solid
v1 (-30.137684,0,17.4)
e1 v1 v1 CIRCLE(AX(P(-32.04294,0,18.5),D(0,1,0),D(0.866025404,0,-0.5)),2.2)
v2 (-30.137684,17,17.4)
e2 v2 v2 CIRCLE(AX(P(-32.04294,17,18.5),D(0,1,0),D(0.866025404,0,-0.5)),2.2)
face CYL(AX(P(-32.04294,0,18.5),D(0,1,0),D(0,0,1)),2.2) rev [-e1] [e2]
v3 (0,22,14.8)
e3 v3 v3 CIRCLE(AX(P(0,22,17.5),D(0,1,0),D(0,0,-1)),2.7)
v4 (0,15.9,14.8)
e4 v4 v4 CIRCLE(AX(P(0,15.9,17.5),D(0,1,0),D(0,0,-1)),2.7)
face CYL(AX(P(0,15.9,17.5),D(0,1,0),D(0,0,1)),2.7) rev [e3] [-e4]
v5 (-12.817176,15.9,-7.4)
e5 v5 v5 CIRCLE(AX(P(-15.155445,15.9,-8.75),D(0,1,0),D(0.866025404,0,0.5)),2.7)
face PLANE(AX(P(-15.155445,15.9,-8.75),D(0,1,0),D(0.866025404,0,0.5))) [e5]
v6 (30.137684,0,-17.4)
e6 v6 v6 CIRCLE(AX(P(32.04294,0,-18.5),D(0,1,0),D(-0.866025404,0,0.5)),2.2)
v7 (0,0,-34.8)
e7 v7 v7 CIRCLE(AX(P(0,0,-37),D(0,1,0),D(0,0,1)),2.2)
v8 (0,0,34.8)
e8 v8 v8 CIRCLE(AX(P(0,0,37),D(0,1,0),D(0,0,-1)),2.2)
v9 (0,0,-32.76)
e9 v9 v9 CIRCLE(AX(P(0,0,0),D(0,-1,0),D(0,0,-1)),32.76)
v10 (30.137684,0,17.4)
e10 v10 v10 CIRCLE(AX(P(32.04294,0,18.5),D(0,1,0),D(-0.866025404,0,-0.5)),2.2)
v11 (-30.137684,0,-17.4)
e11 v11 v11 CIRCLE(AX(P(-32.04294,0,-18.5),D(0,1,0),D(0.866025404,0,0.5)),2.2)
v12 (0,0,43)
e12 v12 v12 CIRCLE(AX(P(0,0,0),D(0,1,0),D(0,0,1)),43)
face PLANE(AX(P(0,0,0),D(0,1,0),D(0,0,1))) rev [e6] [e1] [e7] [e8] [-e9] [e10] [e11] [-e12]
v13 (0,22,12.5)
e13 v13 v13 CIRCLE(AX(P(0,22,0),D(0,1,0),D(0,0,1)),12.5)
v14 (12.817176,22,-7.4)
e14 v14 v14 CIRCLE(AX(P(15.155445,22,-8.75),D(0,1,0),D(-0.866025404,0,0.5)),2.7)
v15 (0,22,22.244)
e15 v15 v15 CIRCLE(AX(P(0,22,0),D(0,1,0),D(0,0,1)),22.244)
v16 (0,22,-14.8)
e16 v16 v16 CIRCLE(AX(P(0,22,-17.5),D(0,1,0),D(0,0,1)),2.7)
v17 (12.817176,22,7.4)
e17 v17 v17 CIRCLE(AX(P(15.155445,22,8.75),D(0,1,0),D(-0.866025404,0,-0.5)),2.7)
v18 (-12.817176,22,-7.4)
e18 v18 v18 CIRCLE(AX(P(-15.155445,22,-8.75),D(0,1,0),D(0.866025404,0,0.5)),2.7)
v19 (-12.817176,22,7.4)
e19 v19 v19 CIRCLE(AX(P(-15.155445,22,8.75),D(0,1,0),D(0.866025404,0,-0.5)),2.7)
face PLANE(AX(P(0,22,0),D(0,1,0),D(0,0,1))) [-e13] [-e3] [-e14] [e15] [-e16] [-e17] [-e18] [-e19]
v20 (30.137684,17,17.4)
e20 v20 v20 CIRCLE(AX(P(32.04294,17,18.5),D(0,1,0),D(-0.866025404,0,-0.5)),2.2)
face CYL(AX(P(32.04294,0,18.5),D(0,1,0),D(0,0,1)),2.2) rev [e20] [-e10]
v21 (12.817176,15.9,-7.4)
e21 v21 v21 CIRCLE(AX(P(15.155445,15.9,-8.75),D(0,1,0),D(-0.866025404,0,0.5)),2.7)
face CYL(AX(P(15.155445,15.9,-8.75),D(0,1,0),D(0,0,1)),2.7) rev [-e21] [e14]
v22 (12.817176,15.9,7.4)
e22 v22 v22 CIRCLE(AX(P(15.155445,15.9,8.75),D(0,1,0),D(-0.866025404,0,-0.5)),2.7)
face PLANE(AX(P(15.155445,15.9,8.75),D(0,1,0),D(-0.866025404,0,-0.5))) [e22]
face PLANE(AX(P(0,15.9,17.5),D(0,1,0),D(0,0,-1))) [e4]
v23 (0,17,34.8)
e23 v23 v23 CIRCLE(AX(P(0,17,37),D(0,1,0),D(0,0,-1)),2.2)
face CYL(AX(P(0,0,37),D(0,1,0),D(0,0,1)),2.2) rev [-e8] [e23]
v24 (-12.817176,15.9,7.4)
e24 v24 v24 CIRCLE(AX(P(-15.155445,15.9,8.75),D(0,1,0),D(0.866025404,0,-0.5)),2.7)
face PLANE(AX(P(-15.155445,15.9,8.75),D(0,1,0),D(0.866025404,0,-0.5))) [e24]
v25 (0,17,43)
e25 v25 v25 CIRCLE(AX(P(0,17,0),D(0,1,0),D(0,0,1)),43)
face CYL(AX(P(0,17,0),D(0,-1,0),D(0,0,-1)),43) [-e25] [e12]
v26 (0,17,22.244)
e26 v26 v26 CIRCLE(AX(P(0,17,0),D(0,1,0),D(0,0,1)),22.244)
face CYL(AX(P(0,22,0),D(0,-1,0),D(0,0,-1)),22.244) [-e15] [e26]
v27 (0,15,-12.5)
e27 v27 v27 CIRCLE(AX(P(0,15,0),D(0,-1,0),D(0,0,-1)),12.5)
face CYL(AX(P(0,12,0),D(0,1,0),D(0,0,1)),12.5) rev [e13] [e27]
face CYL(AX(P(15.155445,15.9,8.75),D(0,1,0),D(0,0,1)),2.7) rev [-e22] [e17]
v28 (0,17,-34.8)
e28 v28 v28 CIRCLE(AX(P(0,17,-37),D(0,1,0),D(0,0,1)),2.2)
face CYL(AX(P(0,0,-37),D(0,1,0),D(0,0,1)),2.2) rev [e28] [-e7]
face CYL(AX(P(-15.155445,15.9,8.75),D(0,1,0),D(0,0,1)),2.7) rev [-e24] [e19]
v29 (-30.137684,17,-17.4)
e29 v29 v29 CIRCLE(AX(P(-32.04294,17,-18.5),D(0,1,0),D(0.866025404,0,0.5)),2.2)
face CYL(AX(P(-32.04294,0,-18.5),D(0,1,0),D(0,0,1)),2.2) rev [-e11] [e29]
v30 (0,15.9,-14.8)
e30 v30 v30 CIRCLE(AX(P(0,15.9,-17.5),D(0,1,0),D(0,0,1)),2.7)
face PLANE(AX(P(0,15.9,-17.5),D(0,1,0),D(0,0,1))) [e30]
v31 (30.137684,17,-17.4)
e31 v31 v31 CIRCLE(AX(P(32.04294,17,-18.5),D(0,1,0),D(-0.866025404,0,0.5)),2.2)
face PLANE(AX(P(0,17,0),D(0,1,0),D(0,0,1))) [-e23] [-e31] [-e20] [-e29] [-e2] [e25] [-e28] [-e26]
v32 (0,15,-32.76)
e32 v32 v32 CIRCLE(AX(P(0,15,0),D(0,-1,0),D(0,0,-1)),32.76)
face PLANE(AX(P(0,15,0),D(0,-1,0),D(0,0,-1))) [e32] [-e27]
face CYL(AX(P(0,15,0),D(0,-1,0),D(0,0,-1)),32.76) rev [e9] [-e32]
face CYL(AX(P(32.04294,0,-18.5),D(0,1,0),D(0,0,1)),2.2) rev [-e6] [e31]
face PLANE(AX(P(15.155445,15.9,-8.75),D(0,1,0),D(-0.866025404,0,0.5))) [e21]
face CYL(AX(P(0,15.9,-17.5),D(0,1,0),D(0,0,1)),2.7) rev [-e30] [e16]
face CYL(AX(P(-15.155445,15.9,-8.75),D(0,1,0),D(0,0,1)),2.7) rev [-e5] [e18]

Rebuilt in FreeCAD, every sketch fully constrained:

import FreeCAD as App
import Part
import Sketcher

doc = App.newDocument("Part")
params = doc.addObject("Spreadsheet::Sheet", "Params")
for row, (alias, value) in enumerate([
    ("sketch1_diameter", "86 mm"),
    ("pad1_length", "17 mm"),
    ("pad2_length", "5 mm"),
    ("sketch3_diameter", "65.52 mm"),
    ("pocket1_length", "15 mm"),
    ("sketch4_diameter", "25 mm"),
    ("pocket2_length", "10 mm"),
    ("sketch5_diameter", "5.4 mm"),
    ("pocket3_length", "6.1 mm"),
    ("sketch6_diameter", "4.4 mm"),
], start=1):
    params.set(f"A{row}", alias)
    params.set(f"B{row}", "=" + value)
    params.setAlias(f"B{row}", alias)

body = doc.addObject("PartDesign::Body", "Body")

# Sketch on XZ plane
sketch1 = body.newObject("Sketcher::SketchObject", "Sketch")
sketch1.AttachmentSupport = (doc.getObject("XZ_Plane"), [""])
sketch1.MapMode = "FlatFace"
sketch1.addGeometry(Part.Circle(App.Vector(0, 0, 0), App.Vector(0, 0, 1), 43), False)
sketch1.addConstraint(Sketcher.Constraint("Coincident", 0, 3, -1, 1))
sketch1.addConstraint(Sketcher.Constraint("Diameter", 0, 86.0))
sketch1.setExpression("Constraints[1]", "Params.sketch1_diameter")
pad1 = body.newObject("PartDesign::Pad", "Pad")
pad1.Profile = sketch1
pad1.setExpression("Length", "Params.pad1_length")
pad1.Reversed = True

# Sketch on XZ plane
sketch2 = body.newObject("Sketcher::SketchObject", "Sketch001")
sketch2.AttachmentSupport = (doc.getObject("XZ_Plane"), [""])
sketch2.MapMode = "FlatFace"
sketch2.AttachmentOffset = App.Placement(App.Vector(0, 0, -17), App.Rotation())
sketch2.addGeometry(Part.Circle(App.Vector(0, 0, 0), App.Vector(0, 0, 1), 22), False)
sketch2.addConstraint(Sketcher.Constraint("Coincident", 0, 3, -1, 1))
sketch2.addConstraint(Sketcher.Constraint("Diameter", 0, 44.488))
pad2 = body.newObject("PartDesign::Pad", "Pad001")
pad2.Profile = sketch2
pad2.setExpression("Length", "Params.pad2_length")
pad2.Reversed = True

# Sketch on XZ plane
sketch3 = body.newObject("Sketcher::SketchObject", "Sketch002")
sketch3.AttachmentSupport = (doc.getObject("XZ_Plane"), [""])
sketch3.MapMode = "FlatFace"
sketch3.addGeometry(Part.Circle(App.Vector(0, 0, 0), App.Vector(0, 0, 1), 33), False)
sketch3.addConstraint(Sketcher.Constraint("Coincident", 0, 3, -1, 1))
sketch3.addConstraint(Sketcher.Constraint("Diameter", 0, 65.52))
sketch3.setExpression("Constraints[1]", "Params.sketch3_diameter")
pocket1 = body.newObject("PartDesign::Pocket", "Pocket")
pocket1.Profile = sketch3
pocket1.setExpression("Length", "Params.pocket1_length")

# Sketch on XZ plane
sketch4 = body.newObject("Sketcher::SketchObject", "Sketch003")
sketch4.AttachmentSupport = (doc.getObject("XZ_Plane"), [""])
sketch4.MapMode = "FlatFace"
sketch4.AttachmentOffset = App.Placement(App.Vector(0, 0, -22), App.Rotation())
sketch4.addGeometry(Part.Circle(App.Vector(0, 0, 0), App.Vector(0, 0, 1), 12), False)
sketch4.addConstraint(Sketcher.Constraint("Coincident", 0, 3, -1, 1))
sketch4.addConstraint(Sketcher.Constraint("Diameter", 0, 25.0))
sketch4.setExpression("Constraints[1]", "Params.sketch4_diameter")
pocket2 = body.newObject("PartDesign::Pocket", "Pocket001")
pocket2.Profile = sketch4
pocket2.setExpression("Length", "Params.pocket2_length")
pocket2.Reversed = True

# Sketch on XZ plane
sketch5 = body.newObject("Sketcher::SketchObject", "Sketch004")
sketch5.AttachmentSupport = (doc.getObject("XZ_Plane"), [""])
sketch5.MapMode = "FlatFace"
sketch5.AttachmentOffset = App.Placement(App.Vector(0, 0, -22), App.Rotation())
sketch5.addGeometry(Part.Circle(App.Vector(0, -17.5, 0), App.Vector(0, 0, 1), 2.7), False)
sketch5.addConstraint(Sketcher.Constraint("PointOnObject", 0, 3, -2))
sketch5.addConstraint(Sketcher.Constraint("Diameter", 0, 5.4))
sketch5.addConstraint(Sketcher.Constraint("DistanceY", 0, 3, -1, 1, 17.5))
sketch5.setExpression("Constraints[1]", "Params.sketch5_diameter")
pocket3 = body.newObject("PartDesign::Pocket", "Pocket002")
pocket3.Profile = sketch5
pocket3.setExpression("Length", "Params.pocket3_length")
pocket3.Reversed = True
doc.recompute()

polarpattern = body.newObject("PartDesign::PolarPattern", "PolarPattern")
polarpattern.Originals = [pocket3]
polarpattern.Axis = (doc.getObject("Y_Axis"), [""])
polarpattern.Angle = 360
polarpattern.Occurrences = 6
body.Tip = polarpattern

# Sketch on XZ plane
sketch6 = body.newObject("Sketcher::SketchObject", "Sketch005")
sketch6.AttachmentSupport = (doc.getObject("XZ_Plane"), [""])
sketch6.MapMode = "FlatFace"
sketch6.AttachmentOffset = App.Placement(App.Vector(0, 0, -17), App.Rotation())
sketch6.addGeometry(Part.Circle(App.Vector(0, -37, 0), App.Vector(0, 0, 1), 2.2), False)
sketch6.addConstraint(Sketcher.Constraint("PointOnObject", 0, 3, -2))
sketch6.addConstraint(Sketcher.Constraint("Diameter", 0, 4.4))
sketch6.addConstraint(Sketcher.Constraint("DistanceY", 0, 3, -1, 1, 37.0))
sketch6.setExpression("Constraints[1]", "Params.sketch6_diameter")
pocket4 = body.newObject("PartDesign::Pocket", "Pocket003")
pocket4.Profile = sketch6
pocket4.Type = "ThroughAll"
pocket4.Reversed = True
doc.recompute()

polarpattern2 = body.newObject("PartDesign::PolarPattern", "PolarPattern001")
polarpattern2.Originals = [pocket4]
polarpattern2.Axis = (doc.getObject("Y_Axis"), [""])
polarpattern2.Angle = 360
polarpattern2.Occurrences = 6
body.Tip = polarpattern2

doc.recompute()
